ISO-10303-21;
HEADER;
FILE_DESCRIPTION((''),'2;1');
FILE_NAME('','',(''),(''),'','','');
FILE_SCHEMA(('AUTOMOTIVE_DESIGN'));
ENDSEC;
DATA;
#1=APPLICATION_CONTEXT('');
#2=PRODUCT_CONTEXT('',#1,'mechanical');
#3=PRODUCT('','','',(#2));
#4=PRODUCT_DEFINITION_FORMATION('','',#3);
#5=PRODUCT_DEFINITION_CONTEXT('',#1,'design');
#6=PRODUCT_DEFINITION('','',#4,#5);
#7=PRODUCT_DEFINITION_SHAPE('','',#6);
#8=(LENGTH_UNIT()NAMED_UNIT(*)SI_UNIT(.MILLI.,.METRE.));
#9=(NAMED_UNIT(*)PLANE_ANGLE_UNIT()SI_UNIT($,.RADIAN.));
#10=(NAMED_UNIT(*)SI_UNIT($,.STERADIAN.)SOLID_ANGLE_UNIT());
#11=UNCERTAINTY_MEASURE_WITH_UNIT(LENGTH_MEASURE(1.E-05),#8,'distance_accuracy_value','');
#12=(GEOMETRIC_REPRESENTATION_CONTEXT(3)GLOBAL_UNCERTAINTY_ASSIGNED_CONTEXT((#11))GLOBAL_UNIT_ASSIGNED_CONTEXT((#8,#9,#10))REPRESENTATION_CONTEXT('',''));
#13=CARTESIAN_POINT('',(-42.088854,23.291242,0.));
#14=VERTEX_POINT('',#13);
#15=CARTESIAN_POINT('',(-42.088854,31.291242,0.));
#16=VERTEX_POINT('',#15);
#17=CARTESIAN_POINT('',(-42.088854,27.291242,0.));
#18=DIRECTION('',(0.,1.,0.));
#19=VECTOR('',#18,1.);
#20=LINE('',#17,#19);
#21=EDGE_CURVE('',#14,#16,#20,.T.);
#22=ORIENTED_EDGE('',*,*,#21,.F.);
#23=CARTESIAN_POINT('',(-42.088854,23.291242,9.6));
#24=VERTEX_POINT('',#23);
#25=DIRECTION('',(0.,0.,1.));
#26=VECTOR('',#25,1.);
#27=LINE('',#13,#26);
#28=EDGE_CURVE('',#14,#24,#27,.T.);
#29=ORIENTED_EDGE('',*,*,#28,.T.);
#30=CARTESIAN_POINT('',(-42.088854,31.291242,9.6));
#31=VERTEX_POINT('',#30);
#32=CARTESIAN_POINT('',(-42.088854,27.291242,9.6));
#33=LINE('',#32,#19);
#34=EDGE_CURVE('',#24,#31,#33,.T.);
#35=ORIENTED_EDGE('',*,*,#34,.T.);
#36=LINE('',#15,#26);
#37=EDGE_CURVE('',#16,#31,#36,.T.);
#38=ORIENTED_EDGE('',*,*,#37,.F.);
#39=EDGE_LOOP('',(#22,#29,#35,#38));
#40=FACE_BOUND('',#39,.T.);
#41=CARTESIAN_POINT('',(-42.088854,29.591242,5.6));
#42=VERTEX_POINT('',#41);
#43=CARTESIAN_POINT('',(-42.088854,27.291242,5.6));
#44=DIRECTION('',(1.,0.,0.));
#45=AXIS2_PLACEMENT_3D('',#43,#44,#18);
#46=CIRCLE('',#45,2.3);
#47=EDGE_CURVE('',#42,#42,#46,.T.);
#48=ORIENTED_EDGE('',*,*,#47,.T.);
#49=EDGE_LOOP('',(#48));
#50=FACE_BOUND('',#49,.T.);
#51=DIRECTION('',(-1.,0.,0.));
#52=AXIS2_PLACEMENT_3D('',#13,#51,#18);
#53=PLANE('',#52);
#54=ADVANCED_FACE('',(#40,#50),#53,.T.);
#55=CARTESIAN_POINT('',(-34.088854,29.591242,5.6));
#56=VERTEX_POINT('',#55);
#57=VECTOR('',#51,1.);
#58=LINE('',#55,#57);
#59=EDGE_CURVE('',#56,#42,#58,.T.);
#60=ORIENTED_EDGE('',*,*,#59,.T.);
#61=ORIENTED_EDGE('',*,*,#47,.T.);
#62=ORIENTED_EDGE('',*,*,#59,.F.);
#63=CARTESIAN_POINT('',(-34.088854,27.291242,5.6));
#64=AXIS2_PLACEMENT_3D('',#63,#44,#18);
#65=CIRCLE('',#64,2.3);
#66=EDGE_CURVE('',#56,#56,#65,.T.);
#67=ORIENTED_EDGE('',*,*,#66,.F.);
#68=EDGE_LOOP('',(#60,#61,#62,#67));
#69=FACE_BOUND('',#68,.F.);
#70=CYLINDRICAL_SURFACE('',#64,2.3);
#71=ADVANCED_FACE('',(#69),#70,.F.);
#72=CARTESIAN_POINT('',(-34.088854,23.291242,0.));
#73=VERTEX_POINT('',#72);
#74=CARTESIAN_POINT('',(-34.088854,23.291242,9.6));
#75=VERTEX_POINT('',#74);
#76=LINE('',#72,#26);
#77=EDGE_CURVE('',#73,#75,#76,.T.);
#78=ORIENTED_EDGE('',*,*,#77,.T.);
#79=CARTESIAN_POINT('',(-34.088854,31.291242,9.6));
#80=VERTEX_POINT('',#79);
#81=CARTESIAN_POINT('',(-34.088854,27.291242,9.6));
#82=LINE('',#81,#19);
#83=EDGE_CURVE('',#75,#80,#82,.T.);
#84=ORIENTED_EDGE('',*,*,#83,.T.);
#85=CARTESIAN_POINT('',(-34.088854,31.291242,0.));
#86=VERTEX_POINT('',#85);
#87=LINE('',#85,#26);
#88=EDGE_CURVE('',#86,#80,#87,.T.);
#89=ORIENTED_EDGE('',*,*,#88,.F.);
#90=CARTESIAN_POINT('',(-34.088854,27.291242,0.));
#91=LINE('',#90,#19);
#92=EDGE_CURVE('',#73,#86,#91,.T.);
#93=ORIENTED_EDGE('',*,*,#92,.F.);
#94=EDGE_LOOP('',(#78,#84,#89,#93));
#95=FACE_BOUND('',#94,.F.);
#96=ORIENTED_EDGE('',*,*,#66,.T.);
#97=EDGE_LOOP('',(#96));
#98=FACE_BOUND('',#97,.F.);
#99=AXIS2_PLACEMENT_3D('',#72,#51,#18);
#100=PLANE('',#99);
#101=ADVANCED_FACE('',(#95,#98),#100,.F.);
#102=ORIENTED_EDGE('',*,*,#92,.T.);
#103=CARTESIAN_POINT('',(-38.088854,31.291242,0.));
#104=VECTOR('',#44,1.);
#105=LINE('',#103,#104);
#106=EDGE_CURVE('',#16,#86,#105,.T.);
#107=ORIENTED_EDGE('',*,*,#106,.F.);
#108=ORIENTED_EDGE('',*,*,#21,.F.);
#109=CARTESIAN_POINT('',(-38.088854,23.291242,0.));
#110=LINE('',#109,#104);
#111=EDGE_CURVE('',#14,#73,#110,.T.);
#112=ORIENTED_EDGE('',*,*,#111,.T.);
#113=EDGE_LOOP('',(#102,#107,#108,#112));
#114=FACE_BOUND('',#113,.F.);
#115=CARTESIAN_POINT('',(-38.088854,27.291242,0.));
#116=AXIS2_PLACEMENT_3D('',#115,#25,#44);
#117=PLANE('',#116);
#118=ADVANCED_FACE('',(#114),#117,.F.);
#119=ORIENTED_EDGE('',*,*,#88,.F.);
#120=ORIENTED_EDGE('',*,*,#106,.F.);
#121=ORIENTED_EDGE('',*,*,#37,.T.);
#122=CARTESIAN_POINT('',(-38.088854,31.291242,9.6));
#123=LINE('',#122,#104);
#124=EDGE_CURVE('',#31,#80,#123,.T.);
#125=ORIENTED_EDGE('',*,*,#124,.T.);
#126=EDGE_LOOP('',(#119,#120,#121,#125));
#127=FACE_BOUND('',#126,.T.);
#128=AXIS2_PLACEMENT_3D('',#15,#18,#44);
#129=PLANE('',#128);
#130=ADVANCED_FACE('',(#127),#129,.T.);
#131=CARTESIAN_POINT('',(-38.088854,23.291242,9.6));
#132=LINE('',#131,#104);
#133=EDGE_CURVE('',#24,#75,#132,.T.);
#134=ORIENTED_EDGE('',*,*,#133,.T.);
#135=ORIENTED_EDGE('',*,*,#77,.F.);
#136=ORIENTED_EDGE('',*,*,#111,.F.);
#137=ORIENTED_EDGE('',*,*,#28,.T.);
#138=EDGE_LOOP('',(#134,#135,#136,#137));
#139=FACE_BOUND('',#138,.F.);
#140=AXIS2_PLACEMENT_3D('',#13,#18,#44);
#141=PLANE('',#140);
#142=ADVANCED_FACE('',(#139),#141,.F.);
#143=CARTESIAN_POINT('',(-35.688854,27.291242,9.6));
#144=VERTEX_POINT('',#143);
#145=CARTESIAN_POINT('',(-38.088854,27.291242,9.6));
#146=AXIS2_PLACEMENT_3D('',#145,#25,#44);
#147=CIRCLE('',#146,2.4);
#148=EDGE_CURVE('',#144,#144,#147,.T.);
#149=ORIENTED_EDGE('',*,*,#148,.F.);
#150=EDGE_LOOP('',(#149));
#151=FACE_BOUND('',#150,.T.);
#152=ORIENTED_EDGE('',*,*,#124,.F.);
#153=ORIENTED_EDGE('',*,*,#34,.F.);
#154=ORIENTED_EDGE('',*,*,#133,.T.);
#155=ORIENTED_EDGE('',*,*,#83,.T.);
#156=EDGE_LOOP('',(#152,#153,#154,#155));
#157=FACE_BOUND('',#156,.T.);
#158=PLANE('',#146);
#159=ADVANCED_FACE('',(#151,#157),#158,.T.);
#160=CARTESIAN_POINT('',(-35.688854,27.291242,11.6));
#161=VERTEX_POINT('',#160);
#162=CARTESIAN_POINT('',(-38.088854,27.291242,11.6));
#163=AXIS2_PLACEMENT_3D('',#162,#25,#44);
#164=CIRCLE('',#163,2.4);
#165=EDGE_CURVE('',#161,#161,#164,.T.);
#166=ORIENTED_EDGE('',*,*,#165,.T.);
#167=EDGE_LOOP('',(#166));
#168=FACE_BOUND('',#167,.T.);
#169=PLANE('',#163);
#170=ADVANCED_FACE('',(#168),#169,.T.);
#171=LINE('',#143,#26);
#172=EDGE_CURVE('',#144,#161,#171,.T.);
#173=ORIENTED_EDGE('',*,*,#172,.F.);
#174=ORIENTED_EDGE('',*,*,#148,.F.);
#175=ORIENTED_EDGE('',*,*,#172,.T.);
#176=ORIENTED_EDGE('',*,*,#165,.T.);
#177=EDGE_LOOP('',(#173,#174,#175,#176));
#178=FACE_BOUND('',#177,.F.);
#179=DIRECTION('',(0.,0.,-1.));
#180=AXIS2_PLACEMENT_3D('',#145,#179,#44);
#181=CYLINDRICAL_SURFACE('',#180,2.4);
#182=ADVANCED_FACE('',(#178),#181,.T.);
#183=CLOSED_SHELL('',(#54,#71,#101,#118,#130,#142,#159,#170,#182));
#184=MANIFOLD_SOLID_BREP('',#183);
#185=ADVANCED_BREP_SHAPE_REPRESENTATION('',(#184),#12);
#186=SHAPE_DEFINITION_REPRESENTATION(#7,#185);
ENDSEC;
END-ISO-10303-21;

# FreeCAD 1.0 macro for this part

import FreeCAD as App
import Part
import Sketcher

V = App.Vector
Q = App.Units.Quantity

doc = App.newDocument("Part")
body = doc.addObject("PartDesign::Body", "Body")

# Sketch on XY plane
sketch1 = body.newObject("Sketcher::SketchObject", "Sketch")
sketch1.AttachmentSupport = (doc.getObject("XY_Plane"), [""])
sketch1.MapMode = "FlatFace"
sketch1.addGeometry([
    Part.LineSegment(V(-42, 31, 0), V(-42, 23, 0)),
    Part.LineSegment(V(-42, 23, 0), V(-34, 23, 0)),
    Part.LineSegment(V(-34, 23, 0), V(-34, 31, 0)),
    Part.LineSegment(V(-34, 31, 0), V(-42, 31, 0)),
], False)
sketch1.addConstraint([
    Sketcher.Constraint("Coincident", 0, 2, 1, 1),
    Sketcher.Constraint("Coincident", 1, 2, 2, 1),
    Sketcher.Constraint("Coincident", 2, 2, 3, 1),
    Sketcher.Constraint("Coincident", 3, 2, 0, 1),
    Sketcher.Constraint("Vertical", 0),
    Sketcher.Constraint("Horizontal", 1),
    Sketcher.Constraint("Vertical", 2),
    Sketcher.Constraint("Horizontal", 3),
    Sketcher.Constraint("Equal", 3, 0),
    Sketcher.Constraint("DistanceX", 1, 1, 1, 2, Q("8 mm")),
    Sketcher.Constraint("DistanceX", 0, 2, -1, 1, Q("42.088854 mm")),
    Sketcher.Constraint("DistanceY", -1, 1, 0, 2, Q("23.291242 mm")),
])
pad1 = body.newObject("PartDesign::Pad", "Pad")
pad1.Profile = sketch1
pad1.Length = 9.6

# Sketch on YZ plane
sketch2 = body.newObject("Sketcher::SketchObject", "Sketch001")
sketch2.AttachmentSupport = (doc.getObject("YZ_Plane"), [""])
sketch2.MapMode = "FlatFace"
sketch2.AttachmentOffset = App.Placement(V(0, 0, -34.088854), App.Rotation())
sketch2.addGeometry(Part.Circle(V(27.3, 5.6, 0), V(0, 0, 1), 2.3), False)
sketch2.addConstraint([
    Sketcher.Constraint("Diameter", 0, Q("4.6 mm")),
    Sketcher.Constraint("DistanceY", -1, 1, 0, 3, Q("5.6 mm")),
    Sketcher.Constraint("DistanceX", -1, 1, 0, 3, Q("27.291242 mm")),
])
pocket1 = body.newObject("PartDesign::Pocket", "Pocket")
pocket1.Profile = sketch2
pocket1.Length = 25

# Sketch on XY plane
sketch3 = body.newObject("Sketcher::SketchObject", "Sketch002")
sketch3.AttachmentSupport = (doc.getObject("XY_Plane"), [""])
sketch3.MapMode = "FlatFace"
sketch3.AttachmentOffset = App.Placement(V(0, 0, 9.6), App.Rotation())
sketch3.addGeometry(Part.Circle(V(-38.1, 27.3, 0), V(0, 0, 1), 2.4), False)
sketch3.addConstraint([
    Sketcher.Constraint("Diameter", 0, Q("4.8 mm")),
    Sketcher.Constraint("DistanceX", 0, 3, -1, 1, Q("38.088854 mm")),
    Sketcher.Constraint("DistanceY", -1, 1, 0, 3, Q("27.291242 mm")),
])
pad2 = body.newObject("PartDesign::Pad", "Pad001")
pad2.Profile = sketch3
pad2.Length = 2

doc.recompute()
